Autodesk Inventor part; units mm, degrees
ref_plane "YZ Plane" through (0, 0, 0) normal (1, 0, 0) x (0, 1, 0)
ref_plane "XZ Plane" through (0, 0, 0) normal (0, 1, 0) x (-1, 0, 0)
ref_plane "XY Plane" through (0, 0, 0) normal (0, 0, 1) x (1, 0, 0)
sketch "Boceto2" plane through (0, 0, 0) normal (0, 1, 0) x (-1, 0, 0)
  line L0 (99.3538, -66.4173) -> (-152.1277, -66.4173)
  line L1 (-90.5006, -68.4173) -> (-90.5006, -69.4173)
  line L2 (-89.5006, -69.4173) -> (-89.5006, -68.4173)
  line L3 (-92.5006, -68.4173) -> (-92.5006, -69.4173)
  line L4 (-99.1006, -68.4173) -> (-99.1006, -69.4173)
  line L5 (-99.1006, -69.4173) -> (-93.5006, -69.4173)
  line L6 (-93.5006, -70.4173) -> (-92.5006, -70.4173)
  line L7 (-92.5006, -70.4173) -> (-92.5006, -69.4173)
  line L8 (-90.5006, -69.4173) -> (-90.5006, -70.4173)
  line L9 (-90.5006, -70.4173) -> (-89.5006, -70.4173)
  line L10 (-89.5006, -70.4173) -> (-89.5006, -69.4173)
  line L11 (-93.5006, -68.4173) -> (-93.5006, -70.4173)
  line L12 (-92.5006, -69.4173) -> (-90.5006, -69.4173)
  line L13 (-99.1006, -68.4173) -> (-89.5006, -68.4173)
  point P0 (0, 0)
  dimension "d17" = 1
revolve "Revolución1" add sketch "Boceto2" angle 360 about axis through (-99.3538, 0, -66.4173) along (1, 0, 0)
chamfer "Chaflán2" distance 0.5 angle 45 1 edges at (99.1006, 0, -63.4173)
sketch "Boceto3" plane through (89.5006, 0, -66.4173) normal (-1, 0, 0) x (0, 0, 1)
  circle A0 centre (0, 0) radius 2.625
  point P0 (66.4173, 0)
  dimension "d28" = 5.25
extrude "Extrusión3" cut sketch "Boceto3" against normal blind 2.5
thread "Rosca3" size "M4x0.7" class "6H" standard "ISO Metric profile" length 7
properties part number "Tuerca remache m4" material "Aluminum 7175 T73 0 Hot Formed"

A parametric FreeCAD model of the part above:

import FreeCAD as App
import Part
import Sketcher
from FreeCAD import Vector


def edges_at(feature, points):
    """Names of the edges that pass closest to the given points."""
    edges = feature.Shape.Edges
    near = lambda p: min(range(len(edges)), key=lambda i: edges[i].distToShape(Part.Vertex(*p))[0])
    return sorted({f"Edge{near(p) + 1}" for p in points})


def add_polygon(sketch, points):
    """Adds a closed chain of lines whose ends are joined by coincident constraints."""
    first, n = sketch.GeometryCount, len(points)
    for a, b in zip(points, points[1:] + points[:1]):
        sketch.addGeometry(Part.LineSegment(App.Vector(*a, 0), App.Vector(*b, 0)), False)
    for i in range(n):
        sketch.addConstraint(Sketcher.Constraint("Coincident", first + i, 2, first + (i + 1) % n, 1))

doc = App.newDocument("Part")
body = doc.addObject("PartDesign::Body", "Body")

sketch1 = body.newObject("Sketcher::SketchObject", "Sketch")
sketch1.AttachmentSupport = (doc.getObject("XZ_Plane"), [""])
sketch1.MapMode = "FlatFace"
add_polygon(sketch1, [(89.5006, -68.4173), (99.1006, -68.4173), (99.1006, -69.4173), (93.5006, -69.4173), (93.5006, -70.4173), (92.5006, -70.4173), (92.5006, -69.4173), (90.5006, -69.4173), (90.5006, -70.4173), (89.5006, -70.4173)])
sketch1.addGeometry(Part.LineSegment(Vector(89.5006, -66.4173, 0), Vector(99.1006, -66.4173, 0)), True)
sketch1.addConstraint([
    Sketcher.Constraint("Horizontal", 0),
    Sketcher.Constraint("Vertical", 1),
    Sketcher.Constraint("Horizontal", 2),
    Sketcher.Constraint("Vertical", 3),
    Sketcher.Constraint("Horizontal", 4),
    Sketcher.Constraint("Vertical", 5),
    Sketcher.Constraint("Horizontal", 6),
    Sketcher.Constraint("Vertical", 7),
    Sketcher.Constraint("Horizontal", 8),
    Sketcher.Constraint("Vertical", 9),
    Sketcher.Constraint("Horizontal", 10),
    Sketcher.Constraint("Horizontal", 2, 2, 5, 2),
    Sketcher.Constraint("Horizontal", 4, 2, 7, 2),
    Sketcher.Constraint("Vertical", 9, 2, 10, 1),
    Sketcher.Constraint("Vertical", 1, 2, 10, 2),
    Sketcher.Constraint("Equal", 4, 8),
    Sketcher.Constraint("Equal", 8, 1),
    Sketcher.Constraint("Equal", 1, 3),
    Sketcher.Constraint("Equal", 6, 9),
    Sketcher.Constraint("DistanceX", 4, 2, 4, 1, 1.0),
    Sketcher.Constraint("DistanceX", 0, 1, 0, 2, 9.6),
    Sketcher.Constraint("DistanceY", 9, 2, 10, 1, 2.0),
    Sketcher.Constraint("DistanceX", -1, 1, 0, 2, 99.1006),
    Sketcher.Constraint("DistanceY", 0, 2, -1, 1, 68.4173),
])
revolution = body.newObject("PartDesign::Revolution", "Revolution")
revolution.Profile = sketch1
revolution.ReferenceAxis = (sketch1, ["Axis0"])
revolution.Angle = 360
doc.recompute()

chamfer = body.newObject("PartDesign::Chamfer", "Chamfer")
chamfer.Base = (revolution, edges_at(revolution, [(99.101, 0, -63.417)]))
chamfer.Size = 0.5

sketch2 = body.newObject("Sketcher::SketchObject", "Sketch001")
sketch2.AttachmentSupport = (doc.getObject("YZ_Plane"), [""])
sketch2.MapMode = "FlatFace"
sketch2.AttachmentOffset = App.Placement(Vector(0, 0, 89.5006), App.Rotation())
sketch2.addGeometry(Part.Circle(Vector(0, -66.4173, 0), Vector(0, 0, 1), 2.625), False)
sketch2.addConstraint([
    Sketcher.Constraint("PointOnObject", 0, 3, -2),
    Sketcher.Constraint("Diameter", 0, 5.25),
    Sketcher.Constraint("DistanceY", 0, 3, -1, 1, 66.4173),
])
pocket1 = body.newObject("PartDesign::Pocket", "Pocket")
pocket1.Profile = sketch2
pocket1.Length = 2.5
pocket1.Reversed = True

doc.recompute()
